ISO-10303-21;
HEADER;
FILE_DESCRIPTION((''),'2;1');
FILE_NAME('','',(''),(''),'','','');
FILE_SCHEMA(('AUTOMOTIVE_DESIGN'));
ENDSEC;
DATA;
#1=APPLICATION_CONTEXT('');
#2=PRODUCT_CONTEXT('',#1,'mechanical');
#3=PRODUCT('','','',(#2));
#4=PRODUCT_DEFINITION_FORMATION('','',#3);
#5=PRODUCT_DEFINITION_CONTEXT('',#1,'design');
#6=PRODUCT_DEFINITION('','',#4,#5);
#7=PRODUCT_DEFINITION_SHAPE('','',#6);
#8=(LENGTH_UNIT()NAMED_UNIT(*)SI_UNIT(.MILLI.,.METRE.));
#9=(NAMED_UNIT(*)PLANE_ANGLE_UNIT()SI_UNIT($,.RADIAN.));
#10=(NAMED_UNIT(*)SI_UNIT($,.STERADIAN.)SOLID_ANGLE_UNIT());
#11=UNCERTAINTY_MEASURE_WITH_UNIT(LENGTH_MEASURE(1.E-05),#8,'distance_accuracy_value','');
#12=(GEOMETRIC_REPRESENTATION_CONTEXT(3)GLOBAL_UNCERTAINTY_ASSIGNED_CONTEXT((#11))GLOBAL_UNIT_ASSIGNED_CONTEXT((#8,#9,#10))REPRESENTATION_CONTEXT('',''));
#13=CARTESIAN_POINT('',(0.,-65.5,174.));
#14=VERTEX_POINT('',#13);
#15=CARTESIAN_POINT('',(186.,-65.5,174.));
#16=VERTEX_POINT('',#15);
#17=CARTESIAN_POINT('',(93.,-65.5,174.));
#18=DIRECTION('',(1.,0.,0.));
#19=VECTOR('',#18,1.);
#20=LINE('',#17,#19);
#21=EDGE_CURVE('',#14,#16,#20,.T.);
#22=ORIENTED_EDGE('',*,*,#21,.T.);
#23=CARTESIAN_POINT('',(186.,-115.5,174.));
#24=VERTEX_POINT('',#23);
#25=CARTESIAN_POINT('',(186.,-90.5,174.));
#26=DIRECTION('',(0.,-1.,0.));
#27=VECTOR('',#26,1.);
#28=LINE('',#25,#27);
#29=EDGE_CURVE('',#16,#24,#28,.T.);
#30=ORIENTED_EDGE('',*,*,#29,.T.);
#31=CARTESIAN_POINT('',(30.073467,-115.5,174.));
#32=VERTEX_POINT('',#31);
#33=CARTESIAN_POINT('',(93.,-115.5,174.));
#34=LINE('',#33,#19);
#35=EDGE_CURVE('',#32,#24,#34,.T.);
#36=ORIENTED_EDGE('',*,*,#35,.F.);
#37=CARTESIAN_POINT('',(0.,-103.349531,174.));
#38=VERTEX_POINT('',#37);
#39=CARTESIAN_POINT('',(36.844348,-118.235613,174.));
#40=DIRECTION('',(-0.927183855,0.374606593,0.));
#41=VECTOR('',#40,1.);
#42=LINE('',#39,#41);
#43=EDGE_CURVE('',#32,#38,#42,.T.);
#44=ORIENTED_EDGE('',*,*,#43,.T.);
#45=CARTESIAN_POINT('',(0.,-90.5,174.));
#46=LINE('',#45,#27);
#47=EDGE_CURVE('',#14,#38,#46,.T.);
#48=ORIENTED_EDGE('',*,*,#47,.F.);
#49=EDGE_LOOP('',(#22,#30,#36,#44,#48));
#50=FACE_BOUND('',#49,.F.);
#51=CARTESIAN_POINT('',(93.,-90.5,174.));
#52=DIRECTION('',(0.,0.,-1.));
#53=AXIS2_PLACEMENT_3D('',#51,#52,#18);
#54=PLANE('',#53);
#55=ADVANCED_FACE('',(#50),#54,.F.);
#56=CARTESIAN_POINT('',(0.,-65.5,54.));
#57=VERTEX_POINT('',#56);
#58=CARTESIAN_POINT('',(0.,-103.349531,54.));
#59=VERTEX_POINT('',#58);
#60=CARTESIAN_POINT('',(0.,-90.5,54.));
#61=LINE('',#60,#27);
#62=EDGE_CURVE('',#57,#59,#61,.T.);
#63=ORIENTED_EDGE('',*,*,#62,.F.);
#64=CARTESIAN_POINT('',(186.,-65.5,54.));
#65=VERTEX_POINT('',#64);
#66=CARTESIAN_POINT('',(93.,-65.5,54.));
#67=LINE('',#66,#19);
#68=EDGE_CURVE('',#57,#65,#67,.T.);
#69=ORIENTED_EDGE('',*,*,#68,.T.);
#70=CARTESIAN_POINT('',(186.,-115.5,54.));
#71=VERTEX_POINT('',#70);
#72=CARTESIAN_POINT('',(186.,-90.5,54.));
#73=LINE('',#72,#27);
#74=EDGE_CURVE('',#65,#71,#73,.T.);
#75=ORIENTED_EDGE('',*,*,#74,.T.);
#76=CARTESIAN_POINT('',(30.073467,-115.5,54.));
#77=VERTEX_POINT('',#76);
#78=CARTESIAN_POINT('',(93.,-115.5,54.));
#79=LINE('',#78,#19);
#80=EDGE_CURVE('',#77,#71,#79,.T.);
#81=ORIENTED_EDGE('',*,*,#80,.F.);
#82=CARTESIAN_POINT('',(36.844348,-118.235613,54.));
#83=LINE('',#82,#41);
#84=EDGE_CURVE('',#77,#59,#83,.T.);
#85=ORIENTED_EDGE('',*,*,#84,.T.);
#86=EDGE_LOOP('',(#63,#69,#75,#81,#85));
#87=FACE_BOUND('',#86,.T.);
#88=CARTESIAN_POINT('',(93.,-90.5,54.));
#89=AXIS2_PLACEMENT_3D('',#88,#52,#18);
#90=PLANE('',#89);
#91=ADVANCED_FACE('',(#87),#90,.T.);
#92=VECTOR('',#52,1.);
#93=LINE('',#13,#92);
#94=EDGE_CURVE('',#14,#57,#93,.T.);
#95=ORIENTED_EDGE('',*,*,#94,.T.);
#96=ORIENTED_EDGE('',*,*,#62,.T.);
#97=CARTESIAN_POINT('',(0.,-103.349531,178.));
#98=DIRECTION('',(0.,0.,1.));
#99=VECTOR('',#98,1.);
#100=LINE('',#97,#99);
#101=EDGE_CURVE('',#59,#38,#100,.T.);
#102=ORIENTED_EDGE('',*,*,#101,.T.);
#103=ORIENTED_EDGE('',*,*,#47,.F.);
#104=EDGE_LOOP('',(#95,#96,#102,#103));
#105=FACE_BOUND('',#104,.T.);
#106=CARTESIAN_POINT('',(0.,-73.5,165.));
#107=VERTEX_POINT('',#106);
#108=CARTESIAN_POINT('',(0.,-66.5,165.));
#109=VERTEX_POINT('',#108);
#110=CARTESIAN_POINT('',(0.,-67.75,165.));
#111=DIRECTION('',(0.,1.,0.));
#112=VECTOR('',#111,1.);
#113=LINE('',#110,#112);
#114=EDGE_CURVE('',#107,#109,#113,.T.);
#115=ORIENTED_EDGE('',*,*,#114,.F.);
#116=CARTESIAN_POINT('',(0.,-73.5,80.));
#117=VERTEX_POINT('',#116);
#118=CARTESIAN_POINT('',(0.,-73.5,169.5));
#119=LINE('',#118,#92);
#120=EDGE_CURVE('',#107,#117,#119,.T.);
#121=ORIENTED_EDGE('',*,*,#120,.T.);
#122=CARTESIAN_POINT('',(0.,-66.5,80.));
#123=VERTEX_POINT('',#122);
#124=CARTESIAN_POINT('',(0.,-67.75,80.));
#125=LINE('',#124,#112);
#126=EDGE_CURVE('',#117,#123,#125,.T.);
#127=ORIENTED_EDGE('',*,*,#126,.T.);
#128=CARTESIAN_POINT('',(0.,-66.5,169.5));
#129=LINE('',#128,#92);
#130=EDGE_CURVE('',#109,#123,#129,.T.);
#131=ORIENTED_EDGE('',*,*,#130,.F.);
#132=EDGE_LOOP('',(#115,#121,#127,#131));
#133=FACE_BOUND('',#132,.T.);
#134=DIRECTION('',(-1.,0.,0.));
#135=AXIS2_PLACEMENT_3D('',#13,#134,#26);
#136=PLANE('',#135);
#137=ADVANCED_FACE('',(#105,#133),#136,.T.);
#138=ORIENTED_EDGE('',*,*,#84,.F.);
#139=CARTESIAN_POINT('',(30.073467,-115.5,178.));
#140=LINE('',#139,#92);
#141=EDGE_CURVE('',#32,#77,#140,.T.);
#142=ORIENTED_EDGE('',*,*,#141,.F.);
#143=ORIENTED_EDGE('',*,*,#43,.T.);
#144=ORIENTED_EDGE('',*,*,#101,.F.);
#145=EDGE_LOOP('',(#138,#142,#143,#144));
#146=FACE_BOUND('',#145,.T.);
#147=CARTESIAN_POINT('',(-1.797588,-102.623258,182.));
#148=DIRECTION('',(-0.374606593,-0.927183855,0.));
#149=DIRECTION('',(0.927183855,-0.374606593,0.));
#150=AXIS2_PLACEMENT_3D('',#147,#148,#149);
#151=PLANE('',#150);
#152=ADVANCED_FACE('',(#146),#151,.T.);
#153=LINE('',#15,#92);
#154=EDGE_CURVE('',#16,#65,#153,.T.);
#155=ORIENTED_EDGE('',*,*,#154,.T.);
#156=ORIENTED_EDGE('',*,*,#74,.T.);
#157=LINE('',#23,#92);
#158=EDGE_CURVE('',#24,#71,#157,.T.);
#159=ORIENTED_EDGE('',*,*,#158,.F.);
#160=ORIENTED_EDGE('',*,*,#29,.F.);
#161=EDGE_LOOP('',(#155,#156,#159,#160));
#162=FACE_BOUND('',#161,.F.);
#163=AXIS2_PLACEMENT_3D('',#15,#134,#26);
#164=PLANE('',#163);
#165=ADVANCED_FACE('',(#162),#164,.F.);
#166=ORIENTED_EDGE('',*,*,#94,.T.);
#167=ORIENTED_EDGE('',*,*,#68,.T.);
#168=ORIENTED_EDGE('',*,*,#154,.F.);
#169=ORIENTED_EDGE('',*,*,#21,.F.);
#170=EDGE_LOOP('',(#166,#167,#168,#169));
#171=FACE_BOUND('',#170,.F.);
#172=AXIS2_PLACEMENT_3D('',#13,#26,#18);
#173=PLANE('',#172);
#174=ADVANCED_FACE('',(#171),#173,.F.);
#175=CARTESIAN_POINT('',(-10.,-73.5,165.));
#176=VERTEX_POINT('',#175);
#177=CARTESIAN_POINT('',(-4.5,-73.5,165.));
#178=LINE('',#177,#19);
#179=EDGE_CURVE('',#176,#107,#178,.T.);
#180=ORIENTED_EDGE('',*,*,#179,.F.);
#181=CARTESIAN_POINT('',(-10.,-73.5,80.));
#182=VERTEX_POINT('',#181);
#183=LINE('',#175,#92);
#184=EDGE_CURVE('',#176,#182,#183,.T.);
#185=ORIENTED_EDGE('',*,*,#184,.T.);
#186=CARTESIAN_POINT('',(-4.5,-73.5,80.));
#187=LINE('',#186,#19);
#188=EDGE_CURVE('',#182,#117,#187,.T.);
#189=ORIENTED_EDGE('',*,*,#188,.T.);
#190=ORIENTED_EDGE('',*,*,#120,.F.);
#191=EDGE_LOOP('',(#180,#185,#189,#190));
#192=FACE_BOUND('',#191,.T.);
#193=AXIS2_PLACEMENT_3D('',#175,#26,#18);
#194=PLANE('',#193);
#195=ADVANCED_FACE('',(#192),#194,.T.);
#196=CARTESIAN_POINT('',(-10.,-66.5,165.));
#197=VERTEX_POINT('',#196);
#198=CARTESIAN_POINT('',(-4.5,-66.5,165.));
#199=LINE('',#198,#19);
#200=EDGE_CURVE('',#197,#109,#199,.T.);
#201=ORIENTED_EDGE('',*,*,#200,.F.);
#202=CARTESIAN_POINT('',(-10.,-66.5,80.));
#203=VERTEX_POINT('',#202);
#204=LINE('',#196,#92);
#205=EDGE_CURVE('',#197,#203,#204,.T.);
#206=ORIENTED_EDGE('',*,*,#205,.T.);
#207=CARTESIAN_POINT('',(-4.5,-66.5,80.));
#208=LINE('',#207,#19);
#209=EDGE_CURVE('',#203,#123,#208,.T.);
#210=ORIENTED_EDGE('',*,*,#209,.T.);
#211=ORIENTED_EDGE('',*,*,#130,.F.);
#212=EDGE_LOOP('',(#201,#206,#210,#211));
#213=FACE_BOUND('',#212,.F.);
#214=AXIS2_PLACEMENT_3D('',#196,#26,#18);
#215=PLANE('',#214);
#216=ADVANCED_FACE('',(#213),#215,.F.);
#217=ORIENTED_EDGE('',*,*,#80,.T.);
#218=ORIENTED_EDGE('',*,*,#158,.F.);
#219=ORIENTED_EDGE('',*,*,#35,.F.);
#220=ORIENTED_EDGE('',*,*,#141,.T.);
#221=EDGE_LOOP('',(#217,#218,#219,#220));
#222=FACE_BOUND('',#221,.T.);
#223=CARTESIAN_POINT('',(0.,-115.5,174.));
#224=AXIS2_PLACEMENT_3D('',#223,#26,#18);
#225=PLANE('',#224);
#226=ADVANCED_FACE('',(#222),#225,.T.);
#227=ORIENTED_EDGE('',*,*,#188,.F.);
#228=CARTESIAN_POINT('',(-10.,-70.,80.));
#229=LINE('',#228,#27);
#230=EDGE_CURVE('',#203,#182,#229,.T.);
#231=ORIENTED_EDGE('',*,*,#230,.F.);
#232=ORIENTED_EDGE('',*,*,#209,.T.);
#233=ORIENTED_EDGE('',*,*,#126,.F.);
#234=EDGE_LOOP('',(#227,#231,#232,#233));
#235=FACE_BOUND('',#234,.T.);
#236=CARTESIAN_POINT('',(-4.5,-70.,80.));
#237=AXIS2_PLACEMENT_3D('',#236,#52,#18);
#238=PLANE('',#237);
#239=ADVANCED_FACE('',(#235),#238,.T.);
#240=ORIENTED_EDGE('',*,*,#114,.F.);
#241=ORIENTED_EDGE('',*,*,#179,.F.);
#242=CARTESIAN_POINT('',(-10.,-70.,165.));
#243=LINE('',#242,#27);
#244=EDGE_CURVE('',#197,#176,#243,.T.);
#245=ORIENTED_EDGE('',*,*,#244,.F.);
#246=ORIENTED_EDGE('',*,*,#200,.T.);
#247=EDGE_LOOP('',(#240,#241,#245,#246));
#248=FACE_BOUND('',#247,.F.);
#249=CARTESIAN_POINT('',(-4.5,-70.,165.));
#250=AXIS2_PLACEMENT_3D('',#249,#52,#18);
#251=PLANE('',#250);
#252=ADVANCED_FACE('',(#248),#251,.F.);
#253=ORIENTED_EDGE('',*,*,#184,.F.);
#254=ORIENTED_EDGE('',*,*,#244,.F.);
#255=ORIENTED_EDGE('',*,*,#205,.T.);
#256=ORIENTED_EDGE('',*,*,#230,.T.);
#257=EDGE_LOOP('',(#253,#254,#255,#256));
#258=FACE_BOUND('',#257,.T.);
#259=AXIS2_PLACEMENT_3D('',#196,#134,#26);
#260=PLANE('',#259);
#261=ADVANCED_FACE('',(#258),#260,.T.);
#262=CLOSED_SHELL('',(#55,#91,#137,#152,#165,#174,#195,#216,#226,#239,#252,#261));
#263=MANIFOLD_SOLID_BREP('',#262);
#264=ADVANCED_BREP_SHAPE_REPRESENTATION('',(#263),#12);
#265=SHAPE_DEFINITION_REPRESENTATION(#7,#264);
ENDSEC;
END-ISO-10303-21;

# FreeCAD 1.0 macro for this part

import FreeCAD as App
import Part
import Sketcher
Q = App.Units.Quantity


def add_polygon(sketch, points):
    """Adds a closed chain of lines whose ends are joined by coincident constraints."""
    first, n = sketch.GeometryCount, len(points)
    for a, b in zip(points, points[1:] + points[:1]):
        sketch.addGeometry(Part.LineSegment(App.Vector(*a, 0), App.Vector(*b, 0)), False)
    for i in range(n):
        sketch.addConstraint(Sketcher.Constraint("Coincident", first + i, 2, first + (i + 1) % n, 1))

doc = App.newDocument("Part")
body = doc.addObject("PartDesign::Body", "Body")

# Sketch on XY plane
sketch1 = doc.addObject("Sketcher::SketchObject", "Sketch")
body.addObject(sketch1)
sketch1.AttachmentSupport = (doc.XY_Plane, [""])
sketch1.MapMode = "FlatFace"
add_polygon(sketch1, [(0, 12), (0, 0), (41, 0), (41, 12)])  # lines 0-3
sketch1.addConstraint([
    Sketcher.Constraint("Vertical", 0),
    Sketcher.Constraint("Horizontal", 1),
    Sketcher.Constraint("Vertical", 2),
    Sketcher.Constraint("Horizontal", 3),
    Sketcher.Constraint("Coincident", 0, 2, -1, 1),
    Sketcher.Constraint("DistanceX", 1, 1, 1, 2, Q("41 mm")),
    Sketcher.Constraint("DistanceY", 0, 2, 0, 1, Q("12 mm")),
])
pad1 = doc.addObject("PartDesign::Pad", "Pad")
body.addObject(pad1)
pad1.Profile = sketch1
pad1.Length = 200
body2 = doc.addObject("PartDesign::Body", "Body001")
doc.recompute()

body.Placement = App.Placement(App.Vector(-1.797588, 37.123258, -8), App.Rotation(App.Vector(0, 0, 1), 22))
boolean = doc.addObject("PartDesign::Boolean", "Boolean")
body2.addObject(boolean)
boolean.Type = "Fuse"
boolean.addObjects([body])
body3 = doc.addObject("PartDesign::Body", "Body002")

# Sketch on XY plane
sketch2 = doc.addObject("Sketcher::SketchObject", "Sketch001")
body3.addObject(sketch2)
sketch2.AttachmentSupport = (doc.getObject("XY_Plane002"), [""])
sketch2.MapMode = "FlatFace"
add_polygon(sketch2, [(0, 50), (0, 0), (186, 0), (186, 50)])  # lines 0-3
sketch2.addConstraint([
    Sketcher.Constraint("Vertical", 0),
    Sketcher.Constraint("Horizontal", 1),
    Sketcher.Constraint("Vertical", 2),
    Sketcher.Constraint("Horizontal", 3),
    Sketcher.Constraint("Coincident", 0, 2, -1, 1),
    Sketcher.Constraint("DistanceX", 1, 1, 1, 2, Q("186 mm")),
    Sketcher.Constraint("DistanceY", 0, 2, 0, 1, Q("50 mm")),
])
pad2 = doc.addObject("PartDesign::Pad", "Pad001")
body3.addObject(pad2)
pad2.Profile = sketch2
pad2.Length = 120
doc.recompute()

boolean2 = doc.addObject("PartDesign::Boolean", "Boolean001")
body3.addObject(boolean2)
boolean2.Type = "Cut"
boolean2.addObjects([body2])
body4 = doc.addObject("PartDesign::Body", "Body003")

# Sketch on XY plane
sketch3 = doc.addObject("Sketcher::SketchObject", "Sketch002")
body4.addObject(sketch3)
sketch3.AttachmentSupport = (doc.getObject("XY_Plane003"), [""])
sketch3.MapMode = "FlatFace"
sketch3.AttachmentOffset = App.Placement(App.Vector(0, 0, 9), App.Rotation())
add_polygon(sketch3, [(-10, 8), (-10, 1), (1, 1), (1, 8)])  # lines 0-3
sketch3.addConstraint([
    Sketcher.Constraint("Vertical", 0),
    Sketcher.Constraint("Horizontal", 1),
    Sketcher.Constraint("Vertical", 2),
    Sketcher.Constraint("Horizontal", 3),
    Sketcher.Constraint("DistanceX", 1, 1, 1, 2, Q("11 mm")),
    Sketcher.Constraint("DistanceY", 0, 2, 0, 1, Q("7 mm")),
    Sketcher.Constraint("DistanceX", 0, 2, -1, 1, Q("10 mm")),
    Sketcher.Constraint("DistanceY", -1, 1, 0, 2, Q("1 mm")),
])
pad3 = doc.addObject("PartDesign::Pad", "Pad002")
body4.addObject(pad3)
pad3.Profile = sketch3
pad3.Length = 85
doc.recompute()

boolean3 = doc.addObject("PartDesign::Boolean", "Boolean002")
body4.addObject(boolean3)
boolean3.Type = "Fuse"
boolean3.addObjects([body3])
body5 = doc.addObject("PartDesign::Body", "Body004")
doc.recompute()

body4.Placement = App.Placement(App.Vector(0, -65.5, 174), App.Rotation(App.Vector(1, 0, 0), 180))
boolean4 = doc.addObject("PartDesign::Boolean", "Boolean003")
body5.addObject(boolean4)
boolean4.Type = "Fuse"
boolean4.addObjects([body4])

doc.recompute()
